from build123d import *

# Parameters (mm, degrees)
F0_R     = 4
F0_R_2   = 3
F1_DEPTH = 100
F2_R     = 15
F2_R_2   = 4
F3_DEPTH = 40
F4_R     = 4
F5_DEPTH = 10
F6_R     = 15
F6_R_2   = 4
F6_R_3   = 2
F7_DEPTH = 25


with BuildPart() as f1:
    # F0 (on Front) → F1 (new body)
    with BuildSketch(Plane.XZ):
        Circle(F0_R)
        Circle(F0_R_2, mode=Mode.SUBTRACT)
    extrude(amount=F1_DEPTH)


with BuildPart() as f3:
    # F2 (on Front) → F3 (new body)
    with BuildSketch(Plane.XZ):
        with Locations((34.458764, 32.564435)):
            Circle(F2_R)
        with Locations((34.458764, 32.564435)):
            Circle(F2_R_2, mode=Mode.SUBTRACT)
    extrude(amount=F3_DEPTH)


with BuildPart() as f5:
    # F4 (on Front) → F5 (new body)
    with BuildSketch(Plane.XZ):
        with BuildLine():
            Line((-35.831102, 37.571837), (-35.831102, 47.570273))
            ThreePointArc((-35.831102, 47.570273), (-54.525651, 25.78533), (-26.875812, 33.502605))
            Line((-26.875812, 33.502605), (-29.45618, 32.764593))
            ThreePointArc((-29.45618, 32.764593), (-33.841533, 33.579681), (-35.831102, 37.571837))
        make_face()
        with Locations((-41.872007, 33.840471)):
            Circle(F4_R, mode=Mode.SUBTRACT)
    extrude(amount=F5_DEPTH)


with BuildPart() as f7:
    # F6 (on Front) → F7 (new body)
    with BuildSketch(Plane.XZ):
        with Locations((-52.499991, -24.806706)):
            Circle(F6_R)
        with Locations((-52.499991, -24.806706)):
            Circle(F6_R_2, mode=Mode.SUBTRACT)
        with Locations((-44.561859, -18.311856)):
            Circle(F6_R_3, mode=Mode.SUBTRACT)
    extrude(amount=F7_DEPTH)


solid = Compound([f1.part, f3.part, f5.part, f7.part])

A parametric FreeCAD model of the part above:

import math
import FreeCAD as App
import Part
import Sketcher
Q = App.Units.Quantity

doc = App.newDocument("Part")
body = doc.addObject("PartDesign::Body", "Body")

sketch1 = body.newObject("Sketcher::SketchObject", "Sketch")
sketch1.AttachmentSupport = (doc.getObject("XZ_Plane"), [""])
sketch1.MapMode = "FlatFace"
sketch1.addGeometry([
    Part.Circle(App.Vector(0, 0, 0), App.Vector(0, 0, 1), 4),
    Part.Circle(App.Vector(0, 0, 0), App.Vector(0, 0, 1), 3),
], False)
sketch1.addConstraint([
    Sketcher.Constraint("Coincident", 0, 3, -1, 1),
    Sketcher.Constraint("Coincident", 1, 3, -1, 1),
    Sketcher.Constraint("Diameter", 0, Q("8 mm")),
    Sketcher.Constraint("Diameter", 1, Q("6 mm")),
])
pad1 = body.newObject("PartDesign::Pad", "Pad")
pad1.Profile = sketch1
pad1.Length = 100
body2 = doc.addObject("PartDesign::Body", "Body001")

sketch2 = body2.newObject("Sketcher::SketchObject", "Sketch001")
sketch2.AttachmentSupport = (doc.getObject("XZ_Plane001"), [""])
sketch2.MapMode = "FlatFace"
sketch2.addGeometry([
    Part.Circle(App.Vector(34.5, 32.6, 0), App.Vector(0, 0, 1), 15),
    Part.Circle(App.Vector(34.5, 32.6, 0), App.Vector(0, 0, 1), 4),
], False)
sketch2.addConstraint([
    Sketcher.Constraint("Coincident", 1, 3, 0, 3),
    Sketcher.Constraint("Diameter", 0, Q("30 mm")),
    Sketcher.Constraint("Diameter", 1, Q("8 mm")),
    Sketcher.Constraint("DistanceX", -1, 1, 0, 3, Q("34.458764 mm")),
    Sketcher.Constraint("DistanceY", -1, 1, 0, 3, Q("32.564435 mm")),
])
pad2 = body2.newObject("PartDesign::Pad", "Pad001")
pad2.Profile = sketch2
pad2.Length = 40
body3 = doc.addObject("PartDesign::Body", "Body002")

sketch3 = body3.newObject("Sketcher::SketchObject", "Sketch002")
sketch3.AttachmentSupport = (doc.getObject("XZ_Plane002"), [""])
sketch3.MapMode = "FlatFace"
sketch3.addGeometry([
    Part.LineSegment(App.Vector(-35.8, 37.6, 0), App.Vector(-35.8, 47.6, 0)),
    Part.ArcOfCircle(Part.Circle(App.Vector(-41.9, 33.8, 0), App.Vector(0, 0, 1), 15), math.radians(66), math.radians(359)),
    Part.LineSegment(App.Vector(-26.9, 33.5, 0), App.Vector(-29.5, 32.8, 0)),
    Part.ArcOfCircle(Part.Circle(App.Vector(-30.8, 37.6, 0), App.Vector(0, 0, 1), 5), math.radians(180), math.radians(286)),
    Part.Circle(App.Vector(-41.9, 33.8, 0), App.Vector(0, 0, 1), 4),
], False)
sketch3.addConstraint([
    Sketcher.Constraint("Coincident", 0, 2, 1, 1),
    Sketcher.Constraint("Coincident", 1, 2, 2, 1),
    Sketcher.Constraint("Tangent", 2, 2, 3, 2),
    Sketcher.Constraint("Tangent", 3, 1, 0, 1),
    Sketcher.Constraint("Vertical", 0),
    Sketcher.Constraint("Coincident", 4, 3, 1, 3),
    Sketcher.Constraint("Diameter", 4, Q("8 mm")),
    Sketcher.Constraint("Radius", 1, Q("15 mm")),
    Sketcher.Constraint("Radius", 3, Q("5 mm")),
    Sketcher.Constraint("DistanceX", 3, 3, -1, 1, Q("30.831102 mm")),
    Sketcher.Constraint("DistanceY", 0, 1, 0, 2, Q("9.998436 mm")),
    Sketcher.Constraint("DistanceY", -1, 1, 1, 3, Q("33.84047 mm")),
    Sketcher.Constraint("DistanceX", 1, 2, -1, 1, Q("26.875812 mm")),
    Sketcher.Constraint("DistanceX", 2, 2, -1, 1, Q("29.45618 mm")),
])
pad3 = body3.newObject("PartDesign::Pad", "Pad002")
pad3.Profile = sketch3
pad3.Length = 10
body4 = doc.addObject("PartDesign::Body", "Body003")

sketch4 = body4.newObject("Sketcher::SketchObject", "Sketch003")
sketch4.AttachmentSupport = (doc.getObject("XZ_Plane003"), [""])
sketch4.MapMode = "FlatFace"
sketch4.addGeometry([
    Part.Circle(App.Vector(-52.5, -24.8, 0), App.Vector(0, 0, 1), 15),
    Part.Circle(App.Vector(-52.5, -24.8, 0), App.Vector(0, 0, 1), 4),
    Part.Circle(App.Vector(-44.6, -18.3, 0), App.Vector(0, 0, 1), 2),
], False)
sketch4.addConstraint([
    Sketcher.Constraint("Coincident", 1, 3, 0, 3),
    Sketcher.Constraint("Diameter", 0, Q("30 mm")),
    Sketcher.Constraint("Diameter", 1, Q("8 mm")),
    Sketcher.Constraint("Diameter", 2, Q("4 mm")),
    Sketcher.Constraint("DistanceX", 0, 3, -1, 1, Q("52.499991 mm")),
    Sketcher.Constraint("DistanceX", 2, 3, -1, 1, Q("44.561859 mm")),
    Sketcher.Constraint("DistanceY", 0, 3, 2, 3, Q("6.49485 mm")),
    Sketcher.Constraint("DistanceY", 0, 3, -1, 1, Q("24.806706 mm")),
])
pad4 = body4.newObject("PartDesign::Pad", "Pad003")
pad4.Profile = sketch4
pad4.Length = 25

doc.recompute()
